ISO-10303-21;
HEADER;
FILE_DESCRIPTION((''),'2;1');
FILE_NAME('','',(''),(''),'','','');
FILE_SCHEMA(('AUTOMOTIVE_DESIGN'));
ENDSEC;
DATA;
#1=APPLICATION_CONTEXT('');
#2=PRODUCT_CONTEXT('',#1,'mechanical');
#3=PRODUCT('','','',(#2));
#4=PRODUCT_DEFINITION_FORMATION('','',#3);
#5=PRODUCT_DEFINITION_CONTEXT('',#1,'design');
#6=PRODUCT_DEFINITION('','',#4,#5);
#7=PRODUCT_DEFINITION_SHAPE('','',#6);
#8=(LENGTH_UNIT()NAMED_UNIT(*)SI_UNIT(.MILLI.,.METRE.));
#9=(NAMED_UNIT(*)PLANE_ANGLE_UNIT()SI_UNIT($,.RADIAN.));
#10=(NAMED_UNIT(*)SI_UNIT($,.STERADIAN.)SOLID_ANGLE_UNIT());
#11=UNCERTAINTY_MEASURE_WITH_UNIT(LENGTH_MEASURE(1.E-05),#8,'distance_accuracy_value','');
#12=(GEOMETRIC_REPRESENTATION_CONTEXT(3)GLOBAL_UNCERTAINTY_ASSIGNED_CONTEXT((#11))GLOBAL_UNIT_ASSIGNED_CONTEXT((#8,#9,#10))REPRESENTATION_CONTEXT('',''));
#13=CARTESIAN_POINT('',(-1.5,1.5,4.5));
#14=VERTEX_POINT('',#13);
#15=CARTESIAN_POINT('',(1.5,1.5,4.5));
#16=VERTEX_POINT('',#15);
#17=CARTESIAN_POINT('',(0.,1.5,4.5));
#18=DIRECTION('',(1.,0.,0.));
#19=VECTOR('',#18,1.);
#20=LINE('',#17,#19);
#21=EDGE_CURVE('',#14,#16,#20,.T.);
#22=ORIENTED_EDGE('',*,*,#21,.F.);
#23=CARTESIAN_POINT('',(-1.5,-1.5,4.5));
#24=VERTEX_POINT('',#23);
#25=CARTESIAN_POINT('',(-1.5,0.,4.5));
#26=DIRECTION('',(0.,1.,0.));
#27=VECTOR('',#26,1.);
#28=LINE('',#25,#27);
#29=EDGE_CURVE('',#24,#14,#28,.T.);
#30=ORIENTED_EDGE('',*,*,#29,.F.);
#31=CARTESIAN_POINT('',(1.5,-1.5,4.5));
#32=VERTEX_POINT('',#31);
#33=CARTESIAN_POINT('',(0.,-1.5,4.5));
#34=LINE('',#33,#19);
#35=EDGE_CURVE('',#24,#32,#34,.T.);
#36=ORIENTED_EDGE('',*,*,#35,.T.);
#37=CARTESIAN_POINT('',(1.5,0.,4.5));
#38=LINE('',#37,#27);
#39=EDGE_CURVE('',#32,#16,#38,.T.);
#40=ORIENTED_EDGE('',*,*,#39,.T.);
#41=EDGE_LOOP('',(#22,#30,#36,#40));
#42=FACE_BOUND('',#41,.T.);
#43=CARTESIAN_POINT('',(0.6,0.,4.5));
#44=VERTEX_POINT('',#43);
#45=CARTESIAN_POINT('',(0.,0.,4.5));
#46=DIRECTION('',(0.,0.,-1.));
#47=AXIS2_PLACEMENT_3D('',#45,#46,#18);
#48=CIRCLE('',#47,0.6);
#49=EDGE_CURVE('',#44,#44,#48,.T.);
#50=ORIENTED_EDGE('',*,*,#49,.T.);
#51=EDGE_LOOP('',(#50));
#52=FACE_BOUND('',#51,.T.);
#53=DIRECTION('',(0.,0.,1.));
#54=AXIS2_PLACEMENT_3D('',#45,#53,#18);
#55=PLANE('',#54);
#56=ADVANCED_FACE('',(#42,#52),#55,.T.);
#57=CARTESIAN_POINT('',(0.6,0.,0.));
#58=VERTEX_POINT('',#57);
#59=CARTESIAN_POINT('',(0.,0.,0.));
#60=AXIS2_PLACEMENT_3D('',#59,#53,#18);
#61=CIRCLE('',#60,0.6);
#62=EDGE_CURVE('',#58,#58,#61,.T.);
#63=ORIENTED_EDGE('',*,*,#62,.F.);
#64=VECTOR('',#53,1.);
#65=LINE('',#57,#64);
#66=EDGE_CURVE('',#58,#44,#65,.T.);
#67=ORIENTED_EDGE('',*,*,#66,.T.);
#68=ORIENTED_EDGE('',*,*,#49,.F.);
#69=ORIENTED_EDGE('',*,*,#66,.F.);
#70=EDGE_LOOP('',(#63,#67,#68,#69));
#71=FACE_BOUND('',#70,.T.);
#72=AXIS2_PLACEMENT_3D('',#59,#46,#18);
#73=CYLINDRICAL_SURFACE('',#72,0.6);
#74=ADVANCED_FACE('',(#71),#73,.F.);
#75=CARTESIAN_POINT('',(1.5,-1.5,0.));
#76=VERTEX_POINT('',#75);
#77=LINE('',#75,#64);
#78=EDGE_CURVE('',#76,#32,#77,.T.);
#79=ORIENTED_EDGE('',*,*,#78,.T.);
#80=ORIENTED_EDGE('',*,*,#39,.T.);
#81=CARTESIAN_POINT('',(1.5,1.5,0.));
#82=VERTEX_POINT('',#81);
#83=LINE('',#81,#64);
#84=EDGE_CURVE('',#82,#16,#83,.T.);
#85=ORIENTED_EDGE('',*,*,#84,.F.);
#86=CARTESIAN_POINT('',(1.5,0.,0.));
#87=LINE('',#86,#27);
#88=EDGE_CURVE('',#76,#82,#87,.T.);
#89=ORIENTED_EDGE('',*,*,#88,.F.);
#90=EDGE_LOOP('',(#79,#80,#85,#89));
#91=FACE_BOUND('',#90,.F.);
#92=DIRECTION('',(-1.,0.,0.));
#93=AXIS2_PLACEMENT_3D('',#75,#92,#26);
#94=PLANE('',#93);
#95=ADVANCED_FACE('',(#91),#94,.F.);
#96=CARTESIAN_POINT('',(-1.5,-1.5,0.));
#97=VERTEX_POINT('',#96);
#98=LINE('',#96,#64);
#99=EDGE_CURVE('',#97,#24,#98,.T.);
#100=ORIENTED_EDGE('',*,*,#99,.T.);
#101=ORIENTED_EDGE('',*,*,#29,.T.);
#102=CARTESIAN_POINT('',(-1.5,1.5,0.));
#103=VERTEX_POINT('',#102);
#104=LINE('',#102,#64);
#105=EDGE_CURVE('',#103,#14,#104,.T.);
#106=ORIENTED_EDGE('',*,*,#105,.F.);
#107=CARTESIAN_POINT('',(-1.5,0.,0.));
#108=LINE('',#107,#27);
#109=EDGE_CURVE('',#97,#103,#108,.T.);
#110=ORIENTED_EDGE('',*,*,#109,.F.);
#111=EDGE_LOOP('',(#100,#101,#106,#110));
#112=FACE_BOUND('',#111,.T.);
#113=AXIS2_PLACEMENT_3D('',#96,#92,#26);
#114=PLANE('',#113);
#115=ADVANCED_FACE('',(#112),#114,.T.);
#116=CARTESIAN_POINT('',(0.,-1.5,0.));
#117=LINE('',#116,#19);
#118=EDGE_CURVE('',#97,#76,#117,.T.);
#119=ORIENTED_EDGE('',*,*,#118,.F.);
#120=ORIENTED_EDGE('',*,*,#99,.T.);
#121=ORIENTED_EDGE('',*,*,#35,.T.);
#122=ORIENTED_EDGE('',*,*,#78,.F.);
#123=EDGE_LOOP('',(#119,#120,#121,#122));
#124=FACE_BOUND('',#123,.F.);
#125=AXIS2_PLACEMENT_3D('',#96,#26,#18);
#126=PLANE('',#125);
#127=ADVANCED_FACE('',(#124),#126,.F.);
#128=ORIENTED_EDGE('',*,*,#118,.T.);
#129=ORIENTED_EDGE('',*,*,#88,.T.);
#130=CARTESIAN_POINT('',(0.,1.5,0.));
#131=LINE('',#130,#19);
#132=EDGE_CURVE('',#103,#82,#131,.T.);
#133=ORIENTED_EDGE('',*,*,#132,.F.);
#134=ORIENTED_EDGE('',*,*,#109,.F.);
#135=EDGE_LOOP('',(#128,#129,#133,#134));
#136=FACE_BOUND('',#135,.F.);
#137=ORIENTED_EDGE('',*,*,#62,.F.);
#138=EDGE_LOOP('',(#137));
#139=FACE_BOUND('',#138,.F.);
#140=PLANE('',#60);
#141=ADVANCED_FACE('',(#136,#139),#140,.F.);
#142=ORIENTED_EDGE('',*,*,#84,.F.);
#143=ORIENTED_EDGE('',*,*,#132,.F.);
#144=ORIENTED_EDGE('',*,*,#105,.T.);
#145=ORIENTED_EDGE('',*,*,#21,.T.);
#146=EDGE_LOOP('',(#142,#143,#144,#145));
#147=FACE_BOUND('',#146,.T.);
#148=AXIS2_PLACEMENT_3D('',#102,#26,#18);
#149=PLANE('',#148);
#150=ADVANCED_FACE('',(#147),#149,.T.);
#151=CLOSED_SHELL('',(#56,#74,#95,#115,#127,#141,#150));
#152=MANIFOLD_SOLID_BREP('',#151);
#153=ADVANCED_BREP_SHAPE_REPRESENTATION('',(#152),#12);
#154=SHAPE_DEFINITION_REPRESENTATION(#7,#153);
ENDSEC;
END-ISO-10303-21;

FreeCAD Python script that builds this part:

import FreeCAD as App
import Part
import Sketcher
from FreeCAD import Vector
Q = App.Units.Quantity


def add_polygon(sketch, points):
    """Adds a closed chain of lines whose ends are joined by coincident constraints."""
    first, n = sketch.GeometryCount, len(points)
    for a, b in zip(points, points[1:] + points[:1]):
        sketch.addGeometry(Part.LineSegment(App.Vector(*a, 0), App.Vector(*b, 0)), False)
    for i in range(n):
        sketch.addConstraint(Sketcher.Constraint("Coincident", first + i, 2, first + (i + 1) % n, 1))

doc = App.newDocument("Part")
body = doc.addObject("PartDesign::Body", "Body")

# Sketch on XY plane
sketch1 = doc.addObject("Sketcher::SketchObject", "Sketch")
body.addObject(sketch1)
sketch1.AttachmentSupport = (doc.XY_Plane, [""])
sketch1.MapMode = "FlatFace"
sketch1.addGeometry(Part.Circle(Vector(0, 0, 0), Vector(0, 0, 1), 0.6), False)
sketch1.addConstraint(Sketcher.Constraint("Coincident", 0, 3, -1, 1))
sketch1.addConstraint(Sketcher.Constraint("Diameter", 0, Q("1.2 mm")))
pad1 = doc.addObject("PartDesign::Pad", "Pad")
body.addObject(pad1)
pad1.Profile = sketch1
pad1.Length = 10
body2 = doc.addObject("PartDesign::Body", "Body001")

# Sketch on XY plane
sketch2 = doc.addObject("Sketcher::SketchObject", "Sketch001")
body2.addObject(sketch2)
sketch2.AttachmentSupport = (doc.getObject("XY_Plane001"), [""])
sketch2.MapMode = "FlatFace"
add_polygon(sketch2, [(-1.5, 1.5), (-1.5, -1.5), (1.5, -1.5), (1.5, 1.5)])  # lines 0-3
sketch2.addConstraint(Sketcher.Constraint("Vertical", 0))
sketch2.addConstraint(Sketcher.Constraint("Horizontal", 1))
sketch2.addConstraint(Sketcher.Constraint("Vertical", 2))
sketch2.addConstraint(Sketcher.Constraint("Horizontal", 3))
sketch2.addConstraint(Sketcher.Constraint("Symmetric", 0, 2, 2, 2, -1, 1))
sketch2.addConstraint(Sketcher.Constraint("Equal", 3, 0))
sketch2.addConstraint(Sketcher.Constraint("DistanceX", 1, 1, 1, 2, Q("3 mm")))
pad2 = doc.addObject("PartDesign::Pad", "Pad001")
body2.addObject(pad2)
pad2.Profile = sketch2
pad2.Length = 4.5
doc.recompute()

boolean = doc.addObject("PartDesign::Boolean", "Boolean")
body2.addObject(boolean)
boolean.Type = "Cut"
boolean.addObjects([body])

doc.recompute()
